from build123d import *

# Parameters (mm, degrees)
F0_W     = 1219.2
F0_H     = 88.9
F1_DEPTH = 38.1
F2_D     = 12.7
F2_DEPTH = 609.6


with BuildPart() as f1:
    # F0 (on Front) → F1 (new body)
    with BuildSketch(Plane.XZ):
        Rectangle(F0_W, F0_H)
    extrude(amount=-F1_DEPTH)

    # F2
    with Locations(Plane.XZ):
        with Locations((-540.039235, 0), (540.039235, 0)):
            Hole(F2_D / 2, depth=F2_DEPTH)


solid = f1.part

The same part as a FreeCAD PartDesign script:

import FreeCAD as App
import Part
import Sketcher
from FreeCAD import Vector
Q = App.Units.Quantity

doc = App.newDocument("Part")
params = doc.addObject("Spreadsheet::Sheet", "Params")
for row, (alias, value) in enumerate([
    ("sketch1_width", "48 in"),
    ("sketch1_height", "3.5 in"),
    ("pad1_length", "1.5 in"),
    ("sketch2_diameter", "0.5 in"),
    ("hole_diameter", "0.5 in"),
    ("hole_depth", "24 in"),
], start=1):
    params.set(f"A{row}", alias)
    params.set(f"B{row}", "=" + value)
    params.setAlias(f"B{row}", alias)

body = doc.addObject("PartDesign::Body", "Body")

sketch1 = body.newObject("Sketcher::SketchObject", "Sketch")
sketch1.AttachmentSupport = (doc.getObject("XZ_Plane"), [""])
sketch1.MapMode = "FlatFace"
sketch1.addGeometry([
    Part.LineSegment(Vector(-610, 44, 0), Vector(-610, -44, 0)),
    Part.LineSegment(Vector(-610, -44, 0), Vector(610, -44, 0)),
    Part.LineSegment(Vector(610, -44, 0), Vector(610, 44, 0)),
    Part.LineSegment(Vector(610, 44, 0), Vector(-610, 44, 0)),
], False)
sketch1.addConstraint([
    Sketcher.Constraint("Coincident", 0, 2, 1, 1),
    Sketcher.Constraint("Coincident", 1, 2, 2, 1),
    Sketcher.Constraint("Coincident", 2, 2, 3, 1),
    Sketcher.Constraint("Coincident", 3, 2, 0, 1),
    Sketcher.Constraint("Vertical", 0),
    Sketcher.Constraint("Horizontal", 1),
    Sketcher.Constraint("Vertical", 2),
    Sketcher.Constraint("Horizontal", 3),
    Sketcher.Constraint("Symmetric", 0, 2, 2, 2, -1, 1),
    Sketcher.Constraint("DistanceX", 1, 1, 1, 2, Q("48 in")),
    Sketcher.Constraint("DistanceY", 0, 2, 0, 1, Q("3.5 in")),
])
sketch1.setExpression("Constraints[9]", "Params.sketch1_width")
sketch1.setExpression("Constraints[10]", "Params.sketch1_height")
pad1 = body.newObject("PartDesign::Pad", "Pad")
pad1.Profile = sketch1
pad1.setExpression("Length", "Params.pad1_length")
pad1.Reversed = True

sketch2 = body.newObject("Sketcher::SketchObject", "Sketch001")
sketch2.AttachmentSupport = (doc.getObject("XZ_Plane"), [""])
sketch2.MapMode = "FlatFace"
sketch2.addGeometry([
    Part.Circle(Vector(-540, 0, 0), Vector(0, 0, 1), 6),
    Part.Circle(Vector(540, 0, 0), Vector(0, 0, 1), 6),
], False)
sketch2.addConstraint([
    Sketcher.Constraint("Equal", 0, 1),
    Sketcher.Constraint("Symmetric", 0, 3, 1, 3, -1, 1),
    Sketcher.Constraint("PointOnObject", 0, 3, -1),
    Sketcher.Constraint("Diameter", 0, Q("0.5 in")),
    Sketcher.Constraint("DistanceX", 0, 3, 1, 3, 1080.07847),
])
sketch2.setExpression("Constraints[3]", "Params.sketch2_diameter")
doc.recompute()
hole = body.newObject("PartDesign::Hole", "Hole")
hole.Profile = sketch2
hole.ThreadType = "None"
hole.setExpression("Diameter", "Params.hole_diameter")
hole.DepthType = "Dimension"
hole.setExpression("Depth", "Params.hole_depth")
hole.DrillPoint = "Flat"

doc.recompute()
